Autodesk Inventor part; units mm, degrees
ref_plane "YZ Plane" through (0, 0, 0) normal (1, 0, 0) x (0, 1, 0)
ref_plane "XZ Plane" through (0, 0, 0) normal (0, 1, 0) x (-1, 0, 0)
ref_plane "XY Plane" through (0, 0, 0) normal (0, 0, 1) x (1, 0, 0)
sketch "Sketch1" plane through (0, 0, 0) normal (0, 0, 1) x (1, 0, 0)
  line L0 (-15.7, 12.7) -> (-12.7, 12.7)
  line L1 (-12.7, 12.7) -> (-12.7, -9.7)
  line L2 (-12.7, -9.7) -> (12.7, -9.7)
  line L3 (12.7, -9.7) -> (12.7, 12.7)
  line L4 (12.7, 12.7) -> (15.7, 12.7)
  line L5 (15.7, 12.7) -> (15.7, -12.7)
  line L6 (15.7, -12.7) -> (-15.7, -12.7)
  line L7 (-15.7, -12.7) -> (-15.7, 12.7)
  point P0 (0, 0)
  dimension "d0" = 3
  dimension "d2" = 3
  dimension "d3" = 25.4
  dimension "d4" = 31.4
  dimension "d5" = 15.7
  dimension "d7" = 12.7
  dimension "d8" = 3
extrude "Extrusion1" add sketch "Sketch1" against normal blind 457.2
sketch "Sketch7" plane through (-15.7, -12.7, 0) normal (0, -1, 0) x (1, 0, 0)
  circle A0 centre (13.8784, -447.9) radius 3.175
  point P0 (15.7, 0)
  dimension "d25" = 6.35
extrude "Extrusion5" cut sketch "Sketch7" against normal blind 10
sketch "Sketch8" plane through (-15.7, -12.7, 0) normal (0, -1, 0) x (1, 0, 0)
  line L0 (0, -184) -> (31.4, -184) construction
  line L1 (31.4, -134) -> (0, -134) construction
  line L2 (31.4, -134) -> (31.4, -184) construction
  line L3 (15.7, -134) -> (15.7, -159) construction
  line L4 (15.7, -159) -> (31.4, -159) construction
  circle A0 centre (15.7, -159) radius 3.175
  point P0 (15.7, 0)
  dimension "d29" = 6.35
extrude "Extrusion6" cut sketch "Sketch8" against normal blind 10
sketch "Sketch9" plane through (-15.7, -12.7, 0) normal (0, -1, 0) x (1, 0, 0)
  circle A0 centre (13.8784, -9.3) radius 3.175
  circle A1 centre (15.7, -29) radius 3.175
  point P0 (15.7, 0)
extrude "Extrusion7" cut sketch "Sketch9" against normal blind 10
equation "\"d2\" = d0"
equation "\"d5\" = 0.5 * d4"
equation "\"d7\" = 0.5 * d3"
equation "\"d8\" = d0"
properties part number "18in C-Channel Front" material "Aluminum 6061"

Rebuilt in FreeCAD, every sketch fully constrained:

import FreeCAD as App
import Part
import Sketcher
Q = App.Units.Quantity


def add_polygon(sketch, points):
    """Adds a closed chain of lines whose ends are joined by coincident constraints."""
    first, n = sketch.GeometryCount, len(points)
    for a, b in zip(points, points[1:] + points[:1]):
        sketch.addGeometry(Part.LineSegment(App.Vector(*a, 0), App.Vector(*b, 0)), False)
    for i in range(n):
        sketch.addConstraint(Sketcher.Constraint("Coincident", first + i, 2, first + (i + 1) % n, 1))

doc = App.newDocument("Part")
body = doc.addObject("PartDesign::Body", "Body")

sketch1 = body.newObject("Sketcher::SketchObject", "Sketch")
sketch1.AttachmentSupport = (doc.getObject("XY_Plane"), [""])
sketch1.MapMode = "FlatFace"
add_polygon(sketch1, [(-12.7, 12.7), (-15.7, 12.7), (-15.7, -12.7), (15.7, -12.7), (15.7, 12.7), (12.7, 12.7), (12.7, -9.7), (-12.7, -9.7)])
sketch1.addConstraint([
    Sketcher.Constraint("Horizontal", 0),
    Sketcher.Constraint("Vertical", 1),
    Sketcher.Constraint("Horizontal", 2),
    Sketcher.Constraint("Vertical", 3),
    Sketcher.Constraint("Horizontal", 4),
    Sketcher.Constraint("Vertical", 5),
    Sketcher.Constraint("Horizontal", 6),
    Sketcher.Constraint("Vertical", 7),
    Sketcher.Constraint("Symmetric", 0, 2, 2, 2, -1, 1),
    Sketcher.Constraint("Symmetric", 4, 2, 7, 2, -2),
    Sketcher.Constraint("Equal", 6, 1),
    Sketcher.Constraint("DistanceX", 6, 2, 6, 1, Q("1 in")),
    Sketcher.Constraint("DistanceX", 0, 2, 0, 1, Q("0.1181 in")),
    Sketcher.Constraint("DistanceY", 2, 2, 5, 2, Q("0.1181 in")),
])
pad1 = body.newObject("PartDesign::Pad", "Pad")
pad1.Profile = sketch1
pad1.Length = Q("18 in")
pad1.Reversed = True

sketch2 = body.newObject("Sketcher::SketchObject", "Sketch001")
sketch2.AttachmentSupport = (doc.getObject("XZ_Plane"), [""])
sketch2.MapMode = "FlatFace"
sketch2.AttachmentOffset = App.Placement(App.Vector(0, 0, 0.5 * 25.4), App.Rotation())
sketch2.addGeometry(Part.Circle(App.Vector(-1.8216, -447.9, 0), App.Vector(0, 0, 1), 3.175), False)
sketch2.addConstraint([
    Sketcher.Constraint("Diameter", 0, Q("0.25 in")),
    Sketcher.Constraint("DistanceX", 0, 3, -1, 1, 1.8216),
    Sketcher.Constraint("DistanceY", 0, 3, -1, 1, 447.9),
])
pocket1 = body.newObject("PartDesign::Pocket", "Pocket")
pocket1.Profile = sketch2
pocket1.Length = Q("0.3937008 in")

sketch3 = body.newObject("Sketcher::SketchObject", "Sketch002")
sketch3.AttachmentSupport = (doc.getObject("XZ_Plane"), [""])
sketch3.MapMode = "FlatFace"
sketch3.AttachmentOffset = App.Placement(App.Vector(0, 0, 0.5 * 25.4), App.Rotation())
sketch3.addGeometry(Part.Circle(App.Vector(0, -159, 0), App.Vector(0, 0, 1), 3.175), False)
sketch3.addConstraint([
    Sketcher.Constraint("PointOnObject", 0, 3, -2),
    Sketcher.Constraint("Diameter", 0, Q("0.25 in")),
    Sketcher.Constraint("DistanceY", 0, 3, -1, 1, 159.0),
])
pocket2 = body.newObject("PartDesign::Pocket", "Pocket001")
pocket2.Profile = sketch3
pocket2.Length = Q("0.3937008 in")

sketch4 = body.newObject("Sketcher::SketchObject", "Sketch003")
sketch4.AttachmentSupport = (doc.getObject("XZ_Plane"), [""])
sketch4.MapMode = "FlatFace"
sketch4.AttachmentOffset = App.Placement(App.Vector(0, 0, 0.5 * 25.4), App.Rotation())
sketch4.addGeometry([
    Part.Circle(App.Vector(-1.8216, -9.3, 0), App.Vector(0, 0, 1), 3.175),
    Part.Circle(App.Vector(0, -29, 0), App.Vector(0, 0, 1), 3.175),
], False)
sketch4.addConstraint([
    Sketcher.Constraint("Equal", 0, 1),
    Sketcher.Constraint("PointOnObject", 1, 3, -2),
    Sketcher.Constraint("Diameter", 0, Q("0.25 in")),
    Sketcher.Constraint("DistanceY", 1, 3, 0, 3, Q("0.7756 in")),
    Sketcher.Constraint("DistanceX", 0, 3, -1, 1, 1.8216),
    Sketcher.Constraint("DistanceY", 0, 3, -1, 1, 9.3),
])
pocket3 = body.newObject("PartDesign::Pocket", "Pocket002")
pocket3.Profile = sketch4
pocket3.Length = Q("0.3937008 in")

doc.recompute()
